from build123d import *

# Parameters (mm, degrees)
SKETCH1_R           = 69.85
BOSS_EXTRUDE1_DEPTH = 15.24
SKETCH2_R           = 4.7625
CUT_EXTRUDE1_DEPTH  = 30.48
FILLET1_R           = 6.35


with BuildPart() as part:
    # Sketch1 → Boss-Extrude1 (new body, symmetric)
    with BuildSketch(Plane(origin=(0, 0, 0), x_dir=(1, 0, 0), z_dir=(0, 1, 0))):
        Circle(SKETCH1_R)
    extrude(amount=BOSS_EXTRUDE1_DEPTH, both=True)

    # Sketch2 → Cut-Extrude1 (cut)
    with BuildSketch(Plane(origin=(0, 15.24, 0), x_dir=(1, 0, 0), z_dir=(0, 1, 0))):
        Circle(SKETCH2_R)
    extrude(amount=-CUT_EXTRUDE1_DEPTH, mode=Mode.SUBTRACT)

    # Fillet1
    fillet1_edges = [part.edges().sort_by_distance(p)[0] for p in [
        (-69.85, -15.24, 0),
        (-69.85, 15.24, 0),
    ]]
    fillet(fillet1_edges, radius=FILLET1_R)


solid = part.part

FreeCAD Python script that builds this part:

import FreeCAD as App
import Part
import Sketcher
Q = App.Units.Quantity


def edges_at(feature, points):
    """Names of the edges that pass closest to the given points."""
    edges = feature.Shape.Edges
    near = lambda p: min(range(len(edges)), key=lambda i: edges[i].distToShape(Part.Vertex(*p))[0])
    return sorted({f"Edge{near(p) + 1}" for p in points})

doc = App.newDocument("Part")
params = doc.addObject("Spreadsheet::Sheet", "Params")
for row, (alias, value) in enumerate([
    ("sketch1_diameter", "5.5 in"),
    ("pad1_length", "1.2 in"),
    ("sketch2_diameter", "0.375 in"),
    ("pocket1_length", "1.2 in"),
    ("fillet_radius", "0.25 in"),
], start=1):
    params.set(f"A{row}", alias)
    params.set(f"B{row}", "=" + value)
    params.setAlias(f"B{row}", alias)

body = doc.addObject("PartDesign::Body", "Body")

# Sketch on XZ plane
sketch1 = body.newObject("Sketcher::SketchObject", "Sketch")
sketch1.AttachmentSupport = (doc.getObject("XZ_Plane"), [""])
sketch1.MapMode = "FlatFace"
sketch1.addGeometry(Part.Circle(App.Vector(0, 0, 0), App.Vector(0, 0, 1), 70), False)
sketch1.addConstraint(Sketcher.Constraint("Coincident", 0, 3, -1, 1))
sketch1.addConstraint(Sketcher.Constraint("Diameter", 0, Q("5.5 in")))
sketch1.setExpression("Constraints[1]", "Params.sketch1_diameter")
pad1 = body.newObject("PartDesign::Pad", "Pad")
pad1.Profile = sketch1
pad1.setExpression("Length", "Params.pad1_length")
pad1.Midplane = True

# Sketch on XZ plane
sketch2 = body.newObject("Sketcher::SketchObject", "Sketch001")
sketch2.AttachmentSupport = (doc.getObject("XZ_Plane"), [""])
sketch2.MapMode = "FlatFace"
sketch2.AttachmentOffset = App.Placement(App.Vector(0, 0, -0.6 * 25.4), App.Rotation())
sketch2.addGeometry(Part.Circle(App.Vector(0, 0, 0), App.Vector(0, 0, 1), 4.8), False)
sketch2.addConstraint(Sketcher.Constraint("Coincident", 0, 3, -1, 1))
sketch2.addConstraint(Sketcher.Constraint("Diameter", 0, Q("0.375 in")))
sketch2.setExpression("Constraints[1]", "Params.sketch2_diameter")
pocket1 = body.newObject("PartDesign::Pocket", "Pocket")
pocket1.Profile = sketch2
pocket1.setExpression("Length", "Params.pocket1_length")
pocket1.Reversed = True
doc.recompute()

fillet = body.newObject("PartDesign::Fillet", "Fillet")
fillet.Base = (pocket1, edges_at(pocket1, [(-69.85, -15.24, 0), (-69.85, 15.24, 0)]))
fillet.setExpression("Radius", "Params.fillet_radius")

doc.recompute()
